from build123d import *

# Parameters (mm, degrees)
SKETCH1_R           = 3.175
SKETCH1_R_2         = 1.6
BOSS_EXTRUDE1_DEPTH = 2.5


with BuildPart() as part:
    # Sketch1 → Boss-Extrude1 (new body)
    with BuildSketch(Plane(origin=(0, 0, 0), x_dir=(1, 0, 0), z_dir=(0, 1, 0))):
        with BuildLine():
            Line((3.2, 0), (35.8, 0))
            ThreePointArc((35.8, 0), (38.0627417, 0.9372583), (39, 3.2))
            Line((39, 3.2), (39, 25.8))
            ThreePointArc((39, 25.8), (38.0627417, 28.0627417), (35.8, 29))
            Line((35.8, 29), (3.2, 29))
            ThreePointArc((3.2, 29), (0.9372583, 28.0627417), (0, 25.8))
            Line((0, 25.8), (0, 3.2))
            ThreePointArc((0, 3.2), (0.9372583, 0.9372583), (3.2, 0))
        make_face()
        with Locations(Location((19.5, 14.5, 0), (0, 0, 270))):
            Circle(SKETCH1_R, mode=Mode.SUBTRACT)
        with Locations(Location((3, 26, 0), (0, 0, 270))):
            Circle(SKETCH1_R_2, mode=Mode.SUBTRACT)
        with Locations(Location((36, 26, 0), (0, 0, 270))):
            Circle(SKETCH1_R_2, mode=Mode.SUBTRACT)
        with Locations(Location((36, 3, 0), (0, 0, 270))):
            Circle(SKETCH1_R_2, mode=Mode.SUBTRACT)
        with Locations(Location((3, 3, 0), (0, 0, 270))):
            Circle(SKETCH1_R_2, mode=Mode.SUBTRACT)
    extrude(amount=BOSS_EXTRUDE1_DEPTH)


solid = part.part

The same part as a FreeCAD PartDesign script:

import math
import FreeCAD as App
import Part
import Sketcher

V = App.Vector
Q = App.Units.Quantity

doc = App.newDocument("Part")
body = doc.addObject("PartDesign::Body", "Body")

# Sketch on XZ plane
sketch1 = body.newObject("Sketcher::SketchObject", "Sketch")
sketch1.AttachmentSupport = (doc.getObject("XZ_Plane"), [""])
sketch1.MapMode = "FlatFace"
sketch1.addGeometry([
    Part.LineSegment(V(3.2, 0, 0), V(35.8, 0, 0)),  # 0
    Part.ArcOfCircle(Part.Circle(V(35.8, -3.2, 0), V(0, 0, 1), 3.2), math.radians(0), math.radians(90)),  # 1
    Part.LineSegment(V(39, -3.2, 0), V(39, -25.8, 0)),  # 2
    Part.ArcOfCircle(Part.Circle(V(35.8, -25.8, 0), V(0, 0, 1), 3.2), math.radians(-90), math.radians(0)),  # 3
    Part.LineSegment(V(35.8, -29, 0), V(3.2, -29, 0)),  # 4
    Part.ArcOfCircle(Part.Circle(V(3.2, -25.8, 0), V(0, 0, 1), 3.2), math.radians(180), math.radians(270)),  # 5
    Part.LineSegment(V(0, -25.8, 0), V(0, -3.2, 0)),  # 6
    Part.ArcOfCircle(Part.Circle(V(3.2, -3.2, 0), V(0, 0, 1), 3.2), math.radians(90), math.radians(180)),  # 7
    Part.Circle(V(3, -3, 0), V(0, 0, 1), 1.6),  # 8
    Part.Circle(V(36, -3, 0), V(0, 0, 1), 1.6),  # 9
    Part.Circle(V(19.5, -14.5, 0), V(0, 0, 1), 3.2),  # 10
    Part.Circle(V(3, -26, 0), V(0, 0, 1), 1.6),  # 11
    Part.Circle(V(36, -26, 0), V(0, 0, 1), 1.6),  # 12
], False)
sketch1.addConstraint([
    Sketcher.Constraint("Tangent", 0, 2, 1, 2),
    Sketcher.Constraint("Tangent", 1, 1, 2, 1),
    Sketcher.Constraint("Tangent", 2, 2, 3, 2),
    Sketcher.Constraint("Tangent", 3, 1, 4, 1),
    Sketcher.Constraint("Tangent", 4, 2, 5, 2),
    Sketcher.Constraint("Tangent", 5, 1, 6, 1),
    Sketcher.Constraint("Tangent", 6, 2, 7, 2),
    Sketcher.Constraint("Tangent", 7, 1, 0, 1),
    Sketcher.Constraint("Horizontal", 0),
    Sketcher.Constraint("Vertical", 2),
    Sketcher.Constraint("Horizontal", 4),
    Sketcher.Constraint("Vertical", 6),
    Sketcher.Constraint("Equal", 1, 3),
    Sketcher.Constraint("Equal", 3, 5),
    Sketcher.Constraint("Equal", 5, 7),
    Sketcher.Constraint("Equal", 8, 9),
    Sketcher.Constraint("Equal", 9, 11),
    Sketcher.Constraint("Equal", 11, 12),
    Sketcher.Constraint("PointOnObject", 0, 2, -1),
    Sketcher.Constraint("PointOnObject", 5, 1, -2),
    Sketcher.Constraint("Horizontal", 8, 3, 9, 3),
    Sketcher.Constraint("Horizontal", 11, 3, 12, 3),
    Sketcher.Constraint("Vertical", 8, 3, 11, 3),
    Sketcher.Constraint("Vertical", 9, 3, 12, 3),
    Sketcher.Constraint("Diameter", 8, Q("3.2 mm")),
    Sketcher.Constraint("Radius", 1, Q("3.2 mm")),
    Sketcher.Constraint("Diameter", 10, Q("6.35 mm")),
    Sketcher.Constraint("DistanceX", 0, 1, 0, 2, Q("32.6 mm")),
    Sketcher.Constraint("DistanceY", 2, 2, 2, 1, Q("22.6 mm")),
    Sketcher.Constraint("DistanceX", -1, 1, 8, 3, Q("3 mm")),
    Sketcher.Constraint("DistanceY", 8, 3, -1, 1, Q("3 mm")),
    Sketcher.Constraint("DistanceX", -1, 1, 9, 3, Q("36 mm")),
    Sketcher.Constraint("DistanceY", 11, 3, -1, 1, Q("26 mm")),
    Sketcher.Constraint("DistanceX", -1, 1, 10, 3, Q("19.5 mm")),
    Sketcher.Constraint("DistanceY", 10, 3, -1, 1, Q("14.5 mm")),
])
pad1 = body.newObject("PartDesign::Pad", "Pad")
pad1.Profile = sketch1
pad1.Length = 2.5
pad1.Reversed = True

doc.recompute()
